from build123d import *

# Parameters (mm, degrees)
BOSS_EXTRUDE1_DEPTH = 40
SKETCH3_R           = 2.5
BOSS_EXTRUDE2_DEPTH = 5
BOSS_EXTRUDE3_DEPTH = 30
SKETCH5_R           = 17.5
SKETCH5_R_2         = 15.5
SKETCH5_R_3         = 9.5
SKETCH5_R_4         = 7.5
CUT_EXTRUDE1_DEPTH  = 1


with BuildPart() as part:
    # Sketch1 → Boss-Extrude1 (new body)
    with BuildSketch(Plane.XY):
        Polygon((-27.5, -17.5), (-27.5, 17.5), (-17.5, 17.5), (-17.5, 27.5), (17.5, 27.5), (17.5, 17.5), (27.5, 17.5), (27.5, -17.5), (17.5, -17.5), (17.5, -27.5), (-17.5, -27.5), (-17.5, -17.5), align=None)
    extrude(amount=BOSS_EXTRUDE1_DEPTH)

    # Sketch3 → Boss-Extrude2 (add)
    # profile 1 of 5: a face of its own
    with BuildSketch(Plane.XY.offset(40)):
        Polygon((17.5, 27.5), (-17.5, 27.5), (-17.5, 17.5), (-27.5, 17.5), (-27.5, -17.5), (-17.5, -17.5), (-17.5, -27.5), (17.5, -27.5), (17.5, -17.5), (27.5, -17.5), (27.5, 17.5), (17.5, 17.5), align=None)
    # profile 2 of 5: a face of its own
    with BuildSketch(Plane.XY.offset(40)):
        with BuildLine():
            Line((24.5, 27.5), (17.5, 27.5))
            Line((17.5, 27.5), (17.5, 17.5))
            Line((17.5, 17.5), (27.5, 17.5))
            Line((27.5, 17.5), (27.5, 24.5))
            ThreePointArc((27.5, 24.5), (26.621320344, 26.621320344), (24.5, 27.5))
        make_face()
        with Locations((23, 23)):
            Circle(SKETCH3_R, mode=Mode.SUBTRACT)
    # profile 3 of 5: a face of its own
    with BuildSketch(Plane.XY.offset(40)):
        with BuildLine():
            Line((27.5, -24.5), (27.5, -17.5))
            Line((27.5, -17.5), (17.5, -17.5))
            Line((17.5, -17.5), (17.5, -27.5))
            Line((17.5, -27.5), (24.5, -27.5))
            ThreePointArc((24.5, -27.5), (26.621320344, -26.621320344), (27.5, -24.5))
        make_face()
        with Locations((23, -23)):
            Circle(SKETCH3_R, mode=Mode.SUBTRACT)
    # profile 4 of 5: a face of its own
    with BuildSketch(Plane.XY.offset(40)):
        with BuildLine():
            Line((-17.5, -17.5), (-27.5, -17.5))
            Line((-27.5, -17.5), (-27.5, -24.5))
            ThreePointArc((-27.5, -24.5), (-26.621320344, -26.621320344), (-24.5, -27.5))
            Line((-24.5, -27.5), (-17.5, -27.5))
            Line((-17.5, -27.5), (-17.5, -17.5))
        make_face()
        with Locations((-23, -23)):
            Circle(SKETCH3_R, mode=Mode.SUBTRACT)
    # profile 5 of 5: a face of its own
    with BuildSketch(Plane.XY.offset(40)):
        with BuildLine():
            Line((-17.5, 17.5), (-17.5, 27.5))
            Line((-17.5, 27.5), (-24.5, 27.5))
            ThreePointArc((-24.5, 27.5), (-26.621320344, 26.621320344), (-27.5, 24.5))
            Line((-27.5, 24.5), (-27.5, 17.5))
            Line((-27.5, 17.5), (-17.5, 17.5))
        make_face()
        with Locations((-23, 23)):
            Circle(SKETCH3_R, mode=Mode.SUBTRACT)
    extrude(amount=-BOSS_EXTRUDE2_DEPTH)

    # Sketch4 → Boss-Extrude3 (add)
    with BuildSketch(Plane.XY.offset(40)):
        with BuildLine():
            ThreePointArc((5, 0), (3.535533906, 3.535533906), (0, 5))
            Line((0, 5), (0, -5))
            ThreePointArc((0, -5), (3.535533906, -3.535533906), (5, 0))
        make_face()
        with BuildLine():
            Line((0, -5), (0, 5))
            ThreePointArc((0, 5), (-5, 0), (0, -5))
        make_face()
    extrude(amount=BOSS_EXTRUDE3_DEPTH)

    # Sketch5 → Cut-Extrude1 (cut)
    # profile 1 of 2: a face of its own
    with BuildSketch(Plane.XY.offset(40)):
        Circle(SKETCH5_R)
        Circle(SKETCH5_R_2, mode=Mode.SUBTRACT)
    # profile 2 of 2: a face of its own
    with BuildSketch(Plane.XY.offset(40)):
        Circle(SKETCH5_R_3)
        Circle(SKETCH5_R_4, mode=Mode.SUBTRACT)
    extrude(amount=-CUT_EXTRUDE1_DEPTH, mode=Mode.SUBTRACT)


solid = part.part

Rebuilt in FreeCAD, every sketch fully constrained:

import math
import FreeCAD as App
import Part
import Sketcher

V = App.Vector


def add_polygon(sketch, points):
    """Adds a closed chain of lines whose ends are joined by coincident constraints."""
    first, n = sketch.GeometryCount, len(points)
    for a, b in zip(points, points[1:] + points[:1]):
        sketch.addGeometry(Part.LineSegment(App.Vector(*a, 0), App.Vector(*b, 0)), False)
    for i in range(n):
        sketch.addConstraint(Sketcher.Constraint("Coincident", first + i, 2, first + (i + 1) % n, 1))

doc = App.newDocument("Part")
body = doc.addObject("PartDesign::Body", "Body")

sketch1 = body.newObject("Sketcher::SketchObject", "Sketch")
sketch1.AttachmentSupport = (doc.getObject("XY_Plane"), [""])
sketch1.MapMode = "FlatFace"
add_polygon(sketch1, [(-28, 18), (-28, -18), (-18, -18), (-18, -28), (18, -28), (18, -18), (28, -18), (28, 18), (18, 18), (18, 28), (-18, 28), (-18, 18)])
sketch1.addConstraint([
    Sketcher.Constraint("Vertical", 0),
    Sketcher.Constraint("Horizontal", 1),
    Sketcher.Constraint("Vertical", 2),
    Sketcher.Constraint("Horizontal", 3),
    Sketcher.Constraint("Vertical", 4),
    Sketcher.Constraint("Horizontal", 5),
    Sketcher.Constraint("Vertical", 6),
    Sketcher.Constraint("Horizontal", 7),
    Sketcher.Constraint("Vertical", 8),
    Sketcher.Constraint("Horizontal", 9),
    Sketcher.Constraint("Vertical", 10),
    Sketcher.Constraint("Horizontal", 11),
    Sketcher.Constraint("Symmetric", 0, 2, 6, 2, -1, 1),
    Sketcher.Constraint("Symmetric", 2, 2, 8, 2, -1, 1),
    Sketcher.Constraint("Symmetric", 4, 2, 10, 2, -1, 1),
    Sketcher.Constraint("Symmetric", 1, 2, 4, 2, -2),
    Sketcher.Constraint("Equal", 9, 0),
    Sketcher.Constraint("Equal", 11, 2),
    Sketcher.Constraint("DistanceX", 1, 1, 1, 2, 10.0),
    Sketcher.Constraint("DistanceX", 3, 1, 3, 2, 35.0),
])
pad1 = body.newObject("PartDesign::Pad", "Pad")
pad1.Profile = sketch1
pad1.Length = 40

sketch2 = body.newObject("Sketcher::SketchObject", "Sketch001")
sketch2.AttachmentSupport = (doc.getObject("XY_Plane"), [""])
sketch2.MapMode = "FlatFace"
sketch2.AttachmentOffset = App.Placement(V(0, 0, 40), App.Rotation())
sketch2.addGeometry([
    Part.ArcOfCircle(Part.Circle(V(-24.5, 24.5, 0), V(0, 0, 1), 3), math.radians(90), math.radians(180)),
    Part.LineSegment(V(-27.5, 24.5, 0), V(-27.5, -24.5, 0)),
    Part.ArcOfCircle(Part.Circle(V(-24.5, -24.5, 0), V(0, 0, 1), 3), math.radians(180), math.radians(270)),
    Part.LineSegment(V(-24.5, -27.5, 0), V(24.5, -27.5, 0)),
    Part.ArcOfCircle(Part.Circle(V(24.5, -24.5, 0), V(0, 0, 1), 3), math.radians(-90), math.radians(0)),
    Part.LineSegment(V(27.5, -24.5, 0), V(27.5, 24.5, 0)),
    Part.ArcOfCircle(Part.Circle(V(24.5, 24.5, 0), V(0, 0, 1), 3), math.radians(0), math.radians(90)),
    Part.LineSegment(V(24.5, 27.5, 0), V(-24.5, 27.5, 0)),
    Part.Circle(V(-23, 23, 0), V(0, 0, 1), 2.5),
    Part.Circle(V(-23, -23, 0), V(0, 0, 1), 2.5),
    Part.Circle(V(23, -23, 0), V(0, 0, 1), 2.5),
    Part.Circle(V(23, 23, 0), V(0, 0, 1), 2.5),
], False)
sketch2.addConstraint([
    Sketcher.Constraint("Tangent", 0, 2, 1, 1),
    Sketcher.Constraint("Tangent", 1, 2, 2, 1),
    Sketcher.Constraint("Tangent", 2, 2, 3, 1),
    Sketcher.Constraint("Tangent", 3, 2, 4, 1),
    Sketcher.Constraint("Tangent", 4, 2, 5, 1),
    Sketcher.Constraint("Tangent", 5, 2, 6, 1),
    Sketcher.Constraint("Tangent", 6, 2, 7, 1),
    Sketcher.Constraint("Tangent", 7, 2, 0, 1),
    Sketcher.Constraint("Vertical", 1),
    Sketcher.Constraint("Horizontal", 3),
    Sketcher.Constraint("Vertical", 5),
    Sketcher.Constraint("Horizontal", 7),
    Sketcher.Constraint("Equal", 0, 2),
    Sketcher.Constraint("Equal", 2, 4),
    Sketcher.Constraint("Equal", 4, 6),
    Sketcher.Constraint("Equal", 8, 9),
    Sketcher.Constraint("Equal", 9, 10),
    Sketcher.Constraint("Equal", 10, 11),
    Sketcher.Constraint("Symmetric", 0, 3, 4, 3, -1, 1),
    Sketcher.Constraint("Symmetric", 8, 3, 10, 3, -1, 1),
    Sketcher.Constraint("Symmetric", 9, 3, 11, 3, -1, 1),
    Sketcher.Constraint("Symmetric", 9, 3, 10, 3, -2),
    Sketcher.Constraint("Equal", 7, 1),
    Sketcher.Constraint("Diameter", 8, 5.0),
    Sketcher.Constraint("Radius", 0, 3.0),
    Sketcher.Constraint("DistanceX", 3, 1, 3, 2, 49.0),
    Sketcher.Constraint("DistanceX", 8, 3, -1, 1, 23.0),
    Sketcher.Constraint("DistanceY", -1, 1, 8, 3, 23.0),
])
pad2 = body.newObject("PartDesign::Pad", "Pad001")
pad2.Profile = sketch2
pad2.Length = 5
pad2.Reversed = True

sketch3 = body.newObject("Sketcher::SketchObject", "Sketch002")
sketch3.AttachmentSupport = (doc.getObject("XY_Plane"), [""])
sketch3.MapMode = "FlatFace"
sketch3.AttachmentOffset = App.Placement(V(0, 0, 40), App.Rotation())
sketch3.addGeometry([
    Part.ArcOfCircle(Part.Circle(V(0, 0, 0), V(0, 0, 1), 5), math.radians(0), math.radians(90)),
    Part.ArcOfCircle(Part.Circle(V(0, 0, 0), V(0, 0, 1), 5), math.radians(90), math.radians(270)),
    Part.ArcOfCircle(Part.Circle(V(0, 0, 0), V(0, 0, 1), 5), math.radians(-90), math.radians(0)),
], False)
sketch3.addConstraint([
    Sketcher.Constraint("Tangent", 0, 2, 1, 1),
    Sketcher.Constraint("Tangent", 1, 2, 2, 1),
    Sketcher.Constraint("Tangent", 2, 2, 0, 1),
    Sketcher.Constraint("Coincident", 0, 3, -1, 1),
    Sketcher.Constraint("PointOnObject", 0, 2, -2),
    Sketcher.Constraint("PointOnObject", 1, 2, -2),
    Sketcher.Constraint("PointOnObject", 2, 2, -1),
    Sketcher.Constraint("Radius", 0, 5.0),
])
pad3 = body.newObject("PartDesign::Pad", "Pad002")
pad3.Profile = sketch3
pad3.Length = 30

sketch4 = body.newObject("Sketcher::SketchObject", "Sketch003")
sketch4.AttachmentSupport = (doc.getObject("XY_Plane"), [""])
sketch4.MapMode = "FlatFace"
sketch4.AttachmentOffset = App.Placement(V(0, 0, 40), App.Rotation())
sketch4.addGeometry([
    Part.Circle(V(0, 0, 0), V(0, 0, 1), 18),
    Part.Circle(V(0, 0, 0), V(0, 0, 1), 16),
    Part.Circle(V(0, 0, 0), V(0, 0, 1), 10),
    Part.Circle(V(0, 0, 0), V(0, 0, 1), 8),
], False)
sketch4.addConstraint([
    Sketcher.Constraint("Coincident", 0, 3, -1, 1),
    Sketcher.Constraint("Coincident", 1, 3, -1, 1),
    Sketcher.Constraint("Coincident", 2, 3, -1, 1),
    Sketcher.Constraint("Coincident", 3, 3, -1, 1),
    Sketcher.Constraint("Diameter", 0, 35.0),
    Sketcher.Constraint("Diameter", 1, 31.0),
    Sketcher.Constraint("Diameter", 2, 19.0),
    Sketcher.Constraint("Diameter", 3, 15.0),
])
pocket1 = body.newObject("PartDesign::Pocket", "Pocket")
pocket1.Profile = sketch4
pocket1.Length = 1

doc.recompute()
